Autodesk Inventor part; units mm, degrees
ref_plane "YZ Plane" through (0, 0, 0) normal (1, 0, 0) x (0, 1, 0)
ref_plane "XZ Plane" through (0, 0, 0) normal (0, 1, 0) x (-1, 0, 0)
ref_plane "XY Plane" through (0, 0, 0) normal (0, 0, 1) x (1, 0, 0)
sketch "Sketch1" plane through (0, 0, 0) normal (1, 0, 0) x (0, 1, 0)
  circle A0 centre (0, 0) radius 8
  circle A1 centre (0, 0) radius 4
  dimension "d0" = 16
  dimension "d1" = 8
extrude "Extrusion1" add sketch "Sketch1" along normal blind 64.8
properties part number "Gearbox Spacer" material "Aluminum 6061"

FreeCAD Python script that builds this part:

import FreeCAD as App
import Part
import Sketcher
Q = App.Units.Quantity

doc = App.newDocument("Part")
body = doc.addObject("PartDesign::Body", "Body")

# Sketch on YZ plane
sketch1 = body.newObject("Sketcher::SketchObject", "Sketch")
sketch1.AttachmentSupport = (doc.getObject("YZ_Plane"), [""])
sketch1.MapMode = "FlatFace"
sketch1.addGeometry([
    Part.Circle(App.Vector(0, 0, 0), App.Vector(0, 0, 1), 8),
    Part.Circle(App.Vector(0, 0, 0), App.Vector(0, 0, 1), 4),
], False)
sketch1.addConstraint([
    Sketcher.Constraint("Coincident", 0, 3, -1, 1),
    Sketcher.Constraint("Coincident", 1, 3, -1, 1),
    Sketcher.Constraint("Diameter", 0, Q("16 mm")),
    Sketcher.Constraint("Diameter", 1, Q("8 mm")),
])
pad1 = body.newObject("PartDesign::Pad", "Pad")
pad1.Profile = sketch1
pad1.Length = 64.8

doc.recompute()
